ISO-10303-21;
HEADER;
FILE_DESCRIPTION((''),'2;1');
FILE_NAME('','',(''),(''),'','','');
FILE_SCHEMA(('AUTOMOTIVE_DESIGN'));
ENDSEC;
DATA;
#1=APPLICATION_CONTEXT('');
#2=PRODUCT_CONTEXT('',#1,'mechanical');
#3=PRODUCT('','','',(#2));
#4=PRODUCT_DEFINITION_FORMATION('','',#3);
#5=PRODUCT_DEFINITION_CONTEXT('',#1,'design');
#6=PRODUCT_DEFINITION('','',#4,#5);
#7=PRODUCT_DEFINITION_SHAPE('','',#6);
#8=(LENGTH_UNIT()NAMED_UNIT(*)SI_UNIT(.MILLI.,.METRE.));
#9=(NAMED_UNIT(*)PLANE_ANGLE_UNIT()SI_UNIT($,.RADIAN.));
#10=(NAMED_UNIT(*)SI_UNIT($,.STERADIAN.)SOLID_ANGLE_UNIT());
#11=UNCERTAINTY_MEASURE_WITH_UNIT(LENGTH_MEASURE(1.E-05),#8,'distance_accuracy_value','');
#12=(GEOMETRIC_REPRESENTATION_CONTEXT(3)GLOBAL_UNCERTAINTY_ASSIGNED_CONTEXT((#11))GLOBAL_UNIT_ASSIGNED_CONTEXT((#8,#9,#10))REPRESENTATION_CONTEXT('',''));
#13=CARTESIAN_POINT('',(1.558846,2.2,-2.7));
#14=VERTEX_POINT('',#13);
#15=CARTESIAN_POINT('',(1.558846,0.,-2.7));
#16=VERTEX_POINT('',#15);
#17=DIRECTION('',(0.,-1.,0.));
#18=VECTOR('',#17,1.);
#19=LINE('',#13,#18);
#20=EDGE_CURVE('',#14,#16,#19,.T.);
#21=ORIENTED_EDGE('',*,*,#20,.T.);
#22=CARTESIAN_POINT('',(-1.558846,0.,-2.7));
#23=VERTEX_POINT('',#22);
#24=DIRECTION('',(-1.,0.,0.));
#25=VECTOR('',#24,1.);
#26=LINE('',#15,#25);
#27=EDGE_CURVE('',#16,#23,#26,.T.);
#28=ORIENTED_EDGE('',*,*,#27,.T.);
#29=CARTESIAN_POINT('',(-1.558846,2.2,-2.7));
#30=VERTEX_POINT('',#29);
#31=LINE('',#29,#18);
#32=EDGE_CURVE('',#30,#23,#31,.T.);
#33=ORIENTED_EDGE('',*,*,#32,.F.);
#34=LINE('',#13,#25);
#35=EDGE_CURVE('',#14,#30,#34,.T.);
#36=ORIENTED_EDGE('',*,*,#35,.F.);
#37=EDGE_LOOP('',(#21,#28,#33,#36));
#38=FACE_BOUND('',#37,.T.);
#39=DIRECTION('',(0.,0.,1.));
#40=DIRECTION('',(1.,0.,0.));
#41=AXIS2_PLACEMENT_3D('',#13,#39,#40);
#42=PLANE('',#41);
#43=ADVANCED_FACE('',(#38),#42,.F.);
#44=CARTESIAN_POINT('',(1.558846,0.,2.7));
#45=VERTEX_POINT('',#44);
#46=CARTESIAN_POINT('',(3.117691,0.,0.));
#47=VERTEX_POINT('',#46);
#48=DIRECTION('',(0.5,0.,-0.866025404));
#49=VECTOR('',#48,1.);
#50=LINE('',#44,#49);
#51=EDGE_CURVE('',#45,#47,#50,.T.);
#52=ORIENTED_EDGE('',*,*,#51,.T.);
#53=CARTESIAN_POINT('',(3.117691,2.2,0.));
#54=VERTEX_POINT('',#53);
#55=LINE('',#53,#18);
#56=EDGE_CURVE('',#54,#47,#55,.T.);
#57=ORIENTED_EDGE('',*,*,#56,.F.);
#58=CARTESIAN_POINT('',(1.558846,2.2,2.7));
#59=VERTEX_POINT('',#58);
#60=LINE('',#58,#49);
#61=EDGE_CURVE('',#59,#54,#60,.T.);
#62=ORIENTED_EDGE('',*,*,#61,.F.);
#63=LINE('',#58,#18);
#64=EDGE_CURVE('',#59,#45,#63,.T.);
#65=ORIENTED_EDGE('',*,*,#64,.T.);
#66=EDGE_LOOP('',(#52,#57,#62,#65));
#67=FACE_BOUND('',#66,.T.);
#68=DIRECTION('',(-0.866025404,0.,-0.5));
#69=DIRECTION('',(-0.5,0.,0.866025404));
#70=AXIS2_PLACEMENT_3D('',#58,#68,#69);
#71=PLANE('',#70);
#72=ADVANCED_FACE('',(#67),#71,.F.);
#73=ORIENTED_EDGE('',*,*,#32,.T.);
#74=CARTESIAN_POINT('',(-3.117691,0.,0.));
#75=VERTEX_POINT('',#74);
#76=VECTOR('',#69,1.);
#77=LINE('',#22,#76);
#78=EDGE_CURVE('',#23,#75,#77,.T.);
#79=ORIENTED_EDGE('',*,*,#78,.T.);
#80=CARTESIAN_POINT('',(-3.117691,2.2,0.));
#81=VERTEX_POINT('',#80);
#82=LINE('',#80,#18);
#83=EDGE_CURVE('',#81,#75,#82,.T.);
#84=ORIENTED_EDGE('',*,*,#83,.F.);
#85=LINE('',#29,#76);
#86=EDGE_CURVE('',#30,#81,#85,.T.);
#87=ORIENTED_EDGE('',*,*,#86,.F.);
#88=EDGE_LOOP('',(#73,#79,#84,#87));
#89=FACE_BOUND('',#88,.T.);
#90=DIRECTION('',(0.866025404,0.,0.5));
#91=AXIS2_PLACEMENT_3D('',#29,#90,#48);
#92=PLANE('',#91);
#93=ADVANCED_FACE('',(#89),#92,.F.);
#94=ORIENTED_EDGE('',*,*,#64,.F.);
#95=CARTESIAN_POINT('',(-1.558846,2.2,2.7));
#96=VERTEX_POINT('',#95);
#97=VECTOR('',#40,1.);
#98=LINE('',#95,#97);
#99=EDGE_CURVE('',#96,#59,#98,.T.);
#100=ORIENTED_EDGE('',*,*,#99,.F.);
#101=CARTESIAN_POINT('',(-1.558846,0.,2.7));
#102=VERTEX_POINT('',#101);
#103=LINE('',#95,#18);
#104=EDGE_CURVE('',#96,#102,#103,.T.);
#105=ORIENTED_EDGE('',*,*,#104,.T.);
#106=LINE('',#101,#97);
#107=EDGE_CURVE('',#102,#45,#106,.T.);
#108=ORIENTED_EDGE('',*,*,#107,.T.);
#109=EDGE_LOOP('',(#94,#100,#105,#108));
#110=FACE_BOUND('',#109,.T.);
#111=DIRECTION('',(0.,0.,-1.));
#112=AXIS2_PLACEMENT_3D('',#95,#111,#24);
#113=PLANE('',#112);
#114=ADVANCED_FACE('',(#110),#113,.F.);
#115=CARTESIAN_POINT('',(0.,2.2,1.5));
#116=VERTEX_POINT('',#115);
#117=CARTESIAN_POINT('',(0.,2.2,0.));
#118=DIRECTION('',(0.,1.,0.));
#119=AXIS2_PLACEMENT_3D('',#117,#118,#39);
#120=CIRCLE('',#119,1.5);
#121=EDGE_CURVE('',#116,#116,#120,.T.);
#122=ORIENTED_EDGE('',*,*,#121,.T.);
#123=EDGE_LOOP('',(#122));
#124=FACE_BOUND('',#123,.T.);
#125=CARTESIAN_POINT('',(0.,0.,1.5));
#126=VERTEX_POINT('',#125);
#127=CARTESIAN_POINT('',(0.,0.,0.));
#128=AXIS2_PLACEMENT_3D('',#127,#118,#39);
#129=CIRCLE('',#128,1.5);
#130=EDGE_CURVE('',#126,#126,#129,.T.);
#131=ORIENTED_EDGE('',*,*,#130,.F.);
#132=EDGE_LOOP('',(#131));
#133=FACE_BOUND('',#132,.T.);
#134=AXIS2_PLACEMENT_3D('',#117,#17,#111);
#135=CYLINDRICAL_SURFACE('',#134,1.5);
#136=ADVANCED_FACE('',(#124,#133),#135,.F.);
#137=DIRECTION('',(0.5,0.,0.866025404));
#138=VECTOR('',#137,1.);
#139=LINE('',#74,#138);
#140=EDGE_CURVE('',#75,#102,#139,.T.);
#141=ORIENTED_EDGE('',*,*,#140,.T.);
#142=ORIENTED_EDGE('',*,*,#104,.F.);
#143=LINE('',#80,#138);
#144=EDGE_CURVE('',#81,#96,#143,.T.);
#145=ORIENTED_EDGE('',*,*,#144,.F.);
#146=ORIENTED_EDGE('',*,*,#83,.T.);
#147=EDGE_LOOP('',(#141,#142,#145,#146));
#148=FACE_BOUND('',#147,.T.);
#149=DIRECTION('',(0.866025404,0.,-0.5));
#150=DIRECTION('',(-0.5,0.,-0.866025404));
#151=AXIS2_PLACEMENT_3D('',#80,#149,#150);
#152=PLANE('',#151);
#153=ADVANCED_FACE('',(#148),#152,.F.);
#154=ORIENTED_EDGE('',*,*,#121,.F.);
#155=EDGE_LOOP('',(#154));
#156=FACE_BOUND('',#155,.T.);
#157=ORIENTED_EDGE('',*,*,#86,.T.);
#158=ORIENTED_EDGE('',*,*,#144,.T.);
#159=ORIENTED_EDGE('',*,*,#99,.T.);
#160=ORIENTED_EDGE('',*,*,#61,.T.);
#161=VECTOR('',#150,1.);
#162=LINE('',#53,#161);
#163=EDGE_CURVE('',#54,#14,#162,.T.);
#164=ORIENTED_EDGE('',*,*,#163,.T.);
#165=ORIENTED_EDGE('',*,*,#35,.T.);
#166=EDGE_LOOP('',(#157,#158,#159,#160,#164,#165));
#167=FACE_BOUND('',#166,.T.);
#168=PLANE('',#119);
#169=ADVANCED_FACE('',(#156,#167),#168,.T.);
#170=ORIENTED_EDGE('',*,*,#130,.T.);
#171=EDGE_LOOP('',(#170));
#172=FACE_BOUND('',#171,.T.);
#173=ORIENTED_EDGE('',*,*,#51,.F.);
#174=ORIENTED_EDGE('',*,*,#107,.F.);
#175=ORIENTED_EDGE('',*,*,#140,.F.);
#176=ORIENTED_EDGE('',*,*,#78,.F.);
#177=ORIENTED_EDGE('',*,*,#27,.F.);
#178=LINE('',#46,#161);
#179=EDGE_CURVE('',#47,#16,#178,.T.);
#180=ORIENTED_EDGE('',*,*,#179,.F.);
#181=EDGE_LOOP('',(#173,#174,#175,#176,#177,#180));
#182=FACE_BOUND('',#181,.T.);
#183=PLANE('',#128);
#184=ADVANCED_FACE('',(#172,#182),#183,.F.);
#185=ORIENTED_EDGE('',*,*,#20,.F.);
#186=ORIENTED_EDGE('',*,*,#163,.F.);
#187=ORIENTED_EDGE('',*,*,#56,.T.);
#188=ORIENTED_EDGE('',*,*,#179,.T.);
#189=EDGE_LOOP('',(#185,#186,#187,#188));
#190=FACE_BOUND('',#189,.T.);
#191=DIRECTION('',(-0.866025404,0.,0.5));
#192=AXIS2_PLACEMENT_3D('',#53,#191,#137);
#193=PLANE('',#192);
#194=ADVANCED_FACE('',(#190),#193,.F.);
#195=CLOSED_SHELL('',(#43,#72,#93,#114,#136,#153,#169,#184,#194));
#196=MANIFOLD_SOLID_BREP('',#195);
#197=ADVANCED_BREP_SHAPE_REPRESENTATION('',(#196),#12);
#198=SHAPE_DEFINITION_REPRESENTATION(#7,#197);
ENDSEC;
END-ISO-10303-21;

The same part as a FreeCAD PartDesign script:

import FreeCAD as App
import Part
import Sketcher
from FreeCAD import Vector
Q = App.Units.Quantity

doc = App.newDocument("Part")
body = doc.addObject("PartDesign::Body", "Body")

# Sketch on XZ plane
sketch1 = body.newObject("Sketcher::SketchObject", "Sketch")
sketch1.AttachmentSupport = (doc.getObject("XZ_Plane"), [""])
sketch1.MapMode = "FlatFace"
sketch1.addGeometry(Part.LineSegment(Vector(3.117691, 0, 0), Vector(1.558846, -2.7, 0)), False)
sketch1.addGeometry(Part.LineSegment(Vector(1.558846, -2.7, 0), Vector(-1.558846, -2.7, 0)), False)
sketch1.addGeometry(Part.LineSegment(Vector(-1.558846, -2.7, 0), Vector(-3.117691, 0, 0)), False)
sketch1.addGeometry(Part.LineSegment(Vector(-3.117691, 0, 0), Vector(-1.558846, 2.7, 0)), False)
sketch1.addGeometry(Part.LineSegment(Vector(-1.558846, 2.7, 0), Vector(1.558846, 2.7, 0)), False)
sketch1.addGeometry(Part.LineSegment(Vector(1.558846, 2.7, 0), Vector(3.117691, 0, 0)), False)
sketch1.addGeometry(Part.Circle(Vector(0, 0, 0), Vector(0, 0, 1), 1.5), False)
sketch1.addConstraint(Sketcher.Constraint("Coincident", 0, 2, 1, 1))
sketch1.addConstraint(Sketcher.Constraint("Coincident", 1, 2, 2, 1))
sketch1.addConstraint(Sketcher.Constraint("Coincident", 2, 2, 3, 1))
sketch1.addConstraint(Sketcher.Constraint("Coincident", 3, 2, 4, 1))
sketch1.addConstraint(Sketcher.Constraint("Coincident", 4, 2, 5, 1))
sketch1.addConstraint(Sketcher.Constraint("Coincident", 5, 2, 0, 1))
sketch1.addConstraint(Sketcher.Constraint("Horizontal", 1))
sketch1.addConstraint(Sketcher.Constraint("Horizontal", 4))
sketch1.addConstraint(Sketcher.Constraint("Coincident", 6, 3, -1, 1))
sketch1.addConstraint(Sketcher.Constraint("Symmetric", 0, 2, 3, 2, -1, 1))
sketch1.addConstraint(Sketcher.Constraint("Symmetric", 2, 2, 5, 2, -1, 1))
sketch1.addConstraint(Sketcher.Constraint("PointOnObject", 2, 2, -1))
sketch1.addConstraint(Sketcher.Constraint("Parallel", 2, 5))
sketch1.addConstraint(Sketcher.Constraint("Vertical", 1, 2, 3, 2))
sketch1.addConstraint(Sketcher.Constraint("Diameter", 6, Q("3 mm")))
sketch1.addConstraint(Sketcher.Constraint("Angle", 0, Q("-120 deg")))
sketch1.addConstraint(Sketcher.Constraint("DistanceY", 0, 2, -1, 1, Q("2.7 mm")))
sketch1.addConstraint(Sketcher.Constraint("DistanceX", 1, 2, 1, 1, Q("3.117691 mm")))
pad1 = body.newObject("PartDesign::Pad", "Pad")
pad1.Profile = sketch1
pad1.Length = 2.2
pad1.Reversed = True

doc.recompute()
